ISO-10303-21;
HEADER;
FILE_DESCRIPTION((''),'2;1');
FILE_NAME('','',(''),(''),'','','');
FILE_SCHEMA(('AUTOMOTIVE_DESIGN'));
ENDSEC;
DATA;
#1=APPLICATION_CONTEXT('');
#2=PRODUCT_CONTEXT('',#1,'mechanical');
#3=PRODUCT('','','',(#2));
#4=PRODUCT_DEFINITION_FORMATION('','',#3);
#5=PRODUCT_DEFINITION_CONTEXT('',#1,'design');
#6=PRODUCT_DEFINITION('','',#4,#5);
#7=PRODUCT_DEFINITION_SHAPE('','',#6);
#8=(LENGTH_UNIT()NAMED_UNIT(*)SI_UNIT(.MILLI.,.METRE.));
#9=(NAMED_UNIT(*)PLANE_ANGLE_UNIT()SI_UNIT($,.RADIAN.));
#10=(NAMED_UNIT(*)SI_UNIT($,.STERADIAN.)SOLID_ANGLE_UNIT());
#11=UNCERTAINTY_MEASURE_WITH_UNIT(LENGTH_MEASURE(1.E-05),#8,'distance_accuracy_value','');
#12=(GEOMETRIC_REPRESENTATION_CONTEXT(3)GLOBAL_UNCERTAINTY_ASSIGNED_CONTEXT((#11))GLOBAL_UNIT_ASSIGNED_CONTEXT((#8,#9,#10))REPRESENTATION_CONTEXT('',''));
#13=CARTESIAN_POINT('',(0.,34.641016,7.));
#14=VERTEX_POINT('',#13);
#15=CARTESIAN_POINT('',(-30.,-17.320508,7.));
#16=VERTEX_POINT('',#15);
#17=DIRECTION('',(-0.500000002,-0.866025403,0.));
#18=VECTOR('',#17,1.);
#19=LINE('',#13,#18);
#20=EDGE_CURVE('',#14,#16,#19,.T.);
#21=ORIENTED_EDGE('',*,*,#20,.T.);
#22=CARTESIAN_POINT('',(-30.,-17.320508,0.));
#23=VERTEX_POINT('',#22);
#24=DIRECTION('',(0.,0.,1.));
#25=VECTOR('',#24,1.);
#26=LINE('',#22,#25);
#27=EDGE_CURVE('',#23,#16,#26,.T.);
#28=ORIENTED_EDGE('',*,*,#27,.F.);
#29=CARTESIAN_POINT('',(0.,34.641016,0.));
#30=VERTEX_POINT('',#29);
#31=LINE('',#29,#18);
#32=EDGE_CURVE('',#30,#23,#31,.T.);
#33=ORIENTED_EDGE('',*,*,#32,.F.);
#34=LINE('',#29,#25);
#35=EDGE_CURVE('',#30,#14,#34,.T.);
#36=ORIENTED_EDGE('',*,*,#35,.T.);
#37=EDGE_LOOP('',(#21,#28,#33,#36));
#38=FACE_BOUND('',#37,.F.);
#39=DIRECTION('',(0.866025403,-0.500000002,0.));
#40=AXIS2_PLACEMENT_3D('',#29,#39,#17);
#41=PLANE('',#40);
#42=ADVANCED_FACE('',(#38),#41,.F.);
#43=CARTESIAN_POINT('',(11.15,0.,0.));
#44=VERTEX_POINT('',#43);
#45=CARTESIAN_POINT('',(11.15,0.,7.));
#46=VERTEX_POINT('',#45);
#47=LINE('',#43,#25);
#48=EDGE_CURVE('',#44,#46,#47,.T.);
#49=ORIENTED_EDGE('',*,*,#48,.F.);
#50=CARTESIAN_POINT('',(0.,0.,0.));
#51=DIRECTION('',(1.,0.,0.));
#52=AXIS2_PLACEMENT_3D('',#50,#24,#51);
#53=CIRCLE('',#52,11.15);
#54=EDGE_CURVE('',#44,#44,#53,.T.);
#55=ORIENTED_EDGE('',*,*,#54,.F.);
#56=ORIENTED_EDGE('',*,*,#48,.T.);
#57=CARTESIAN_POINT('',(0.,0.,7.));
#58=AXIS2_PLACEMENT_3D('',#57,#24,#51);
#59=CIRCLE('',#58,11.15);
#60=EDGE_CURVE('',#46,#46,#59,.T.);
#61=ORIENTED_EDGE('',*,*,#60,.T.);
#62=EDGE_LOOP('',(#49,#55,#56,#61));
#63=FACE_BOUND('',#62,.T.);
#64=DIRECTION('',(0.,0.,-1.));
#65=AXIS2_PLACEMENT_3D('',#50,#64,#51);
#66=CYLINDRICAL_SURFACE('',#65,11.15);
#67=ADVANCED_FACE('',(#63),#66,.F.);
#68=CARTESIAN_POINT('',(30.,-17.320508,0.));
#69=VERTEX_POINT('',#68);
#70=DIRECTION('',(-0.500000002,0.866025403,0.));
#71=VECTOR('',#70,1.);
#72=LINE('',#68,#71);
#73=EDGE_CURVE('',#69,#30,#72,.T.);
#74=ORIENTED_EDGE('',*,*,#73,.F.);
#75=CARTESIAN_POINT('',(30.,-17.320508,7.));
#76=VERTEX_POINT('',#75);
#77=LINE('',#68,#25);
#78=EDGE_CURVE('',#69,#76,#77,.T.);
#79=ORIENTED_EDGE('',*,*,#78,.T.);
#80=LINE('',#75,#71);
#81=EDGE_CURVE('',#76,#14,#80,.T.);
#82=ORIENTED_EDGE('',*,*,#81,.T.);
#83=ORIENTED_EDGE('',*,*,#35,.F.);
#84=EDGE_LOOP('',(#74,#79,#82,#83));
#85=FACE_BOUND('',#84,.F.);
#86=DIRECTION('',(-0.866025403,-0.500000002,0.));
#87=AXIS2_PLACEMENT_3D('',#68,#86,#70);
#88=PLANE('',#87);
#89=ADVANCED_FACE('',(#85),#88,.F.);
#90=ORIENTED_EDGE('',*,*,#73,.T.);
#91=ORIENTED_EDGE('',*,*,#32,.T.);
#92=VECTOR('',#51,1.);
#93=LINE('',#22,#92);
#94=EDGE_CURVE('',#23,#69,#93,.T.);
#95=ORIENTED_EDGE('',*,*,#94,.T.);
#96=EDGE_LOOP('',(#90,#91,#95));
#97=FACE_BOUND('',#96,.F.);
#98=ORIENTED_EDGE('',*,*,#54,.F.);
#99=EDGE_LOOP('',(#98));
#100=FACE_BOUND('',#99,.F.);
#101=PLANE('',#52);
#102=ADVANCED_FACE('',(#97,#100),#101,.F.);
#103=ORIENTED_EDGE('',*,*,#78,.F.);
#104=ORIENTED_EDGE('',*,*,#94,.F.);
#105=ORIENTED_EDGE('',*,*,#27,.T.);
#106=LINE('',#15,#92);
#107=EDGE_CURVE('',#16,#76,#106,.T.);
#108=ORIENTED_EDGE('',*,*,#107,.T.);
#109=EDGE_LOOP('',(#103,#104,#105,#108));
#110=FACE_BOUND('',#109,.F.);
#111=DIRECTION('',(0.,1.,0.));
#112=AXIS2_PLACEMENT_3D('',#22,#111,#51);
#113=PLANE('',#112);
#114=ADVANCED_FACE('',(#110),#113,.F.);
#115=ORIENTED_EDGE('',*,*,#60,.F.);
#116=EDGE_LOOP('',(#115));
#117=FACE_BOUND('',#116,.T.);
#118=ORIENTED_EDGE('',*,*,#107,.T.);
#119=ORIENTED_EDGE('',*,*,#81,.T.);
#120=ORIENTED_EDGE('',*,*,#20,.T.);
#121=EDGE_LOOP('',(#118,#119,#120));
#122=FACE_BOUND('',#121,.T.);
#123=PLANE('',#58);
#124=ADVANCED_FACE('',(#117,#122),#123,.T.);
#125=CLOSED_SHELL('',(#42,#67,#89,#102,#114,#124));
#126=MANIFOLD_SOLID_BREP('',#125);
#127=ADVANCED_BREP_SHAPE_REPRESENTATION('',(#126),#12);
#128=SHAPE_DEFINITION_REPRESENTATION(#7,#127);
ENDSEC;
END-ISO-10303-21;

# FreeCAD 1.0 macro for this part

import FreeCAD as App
import Part
import Sketcher
Q = App.Units.Quantity

doc = App.newDocument("Part")
body = doc.addObject("PartDesign::Body", "Body")

sketch1 = body.newObject("Sketcher::SketchObject", "Sketch")
sketch1.AttachmentSupport = (doc.getObject("XY_Plane"), [""])
sketch1.MapMode = "FlatFace"
sketch1.addGeometry([
    Part.LineSegment(App.Vector(-30, -17.320508, 0), App.Vector(30, -17.320508, 0)),
    Part.LineSegment(App.Vector(30, -17.320508, 0), App.Vector(0, 34.641016, 0)),
    Part.LineSegment(App.Vector(0, 34.641016, 0), App.Vector(-30, -17.320508, 0)),
    Part.Circle(App.Vector(0, 0, 0), App.Vector(0, 0, 1), 11.15),
], False)
sketch1.addConstraint([
    Sketcher.Constraint("Coincident", 0, 2, 1, 1),
    Sketcher.Constraint("Coincident", 1, 2, 2, 1),
    Sketcher.Constraint("Coincident", 2, 2, 0, 1),
    Sketcher.Constraint("Horizontal", 0),
    Sketcher.Constraint("Coincident", 3, 3, -1, 1),
    Sketcher.Constraint("PointOnObject", 1, 2, -2),
    Sketcher.Constraint("Equal", 1, 2),
    Sketcher.Constraint("Diameter", 3, Q("22.3 mm")),
    Sketcher.Constraint("DistanceX", 0, 1, 0, 2, Q("60 mm")),
    Sketcher.Constraint("Angle", 1, Q("120 deg")),
    Sketcher.Constraint("DistanceY", 0, 2, -1, 1, Q("17.320508 mm")),
])
pad1 = body.newObject("PartDesign::Pad", "Pad")
pad1.Profile = sketch1
pad1.Length = 7

doc.recompute()
